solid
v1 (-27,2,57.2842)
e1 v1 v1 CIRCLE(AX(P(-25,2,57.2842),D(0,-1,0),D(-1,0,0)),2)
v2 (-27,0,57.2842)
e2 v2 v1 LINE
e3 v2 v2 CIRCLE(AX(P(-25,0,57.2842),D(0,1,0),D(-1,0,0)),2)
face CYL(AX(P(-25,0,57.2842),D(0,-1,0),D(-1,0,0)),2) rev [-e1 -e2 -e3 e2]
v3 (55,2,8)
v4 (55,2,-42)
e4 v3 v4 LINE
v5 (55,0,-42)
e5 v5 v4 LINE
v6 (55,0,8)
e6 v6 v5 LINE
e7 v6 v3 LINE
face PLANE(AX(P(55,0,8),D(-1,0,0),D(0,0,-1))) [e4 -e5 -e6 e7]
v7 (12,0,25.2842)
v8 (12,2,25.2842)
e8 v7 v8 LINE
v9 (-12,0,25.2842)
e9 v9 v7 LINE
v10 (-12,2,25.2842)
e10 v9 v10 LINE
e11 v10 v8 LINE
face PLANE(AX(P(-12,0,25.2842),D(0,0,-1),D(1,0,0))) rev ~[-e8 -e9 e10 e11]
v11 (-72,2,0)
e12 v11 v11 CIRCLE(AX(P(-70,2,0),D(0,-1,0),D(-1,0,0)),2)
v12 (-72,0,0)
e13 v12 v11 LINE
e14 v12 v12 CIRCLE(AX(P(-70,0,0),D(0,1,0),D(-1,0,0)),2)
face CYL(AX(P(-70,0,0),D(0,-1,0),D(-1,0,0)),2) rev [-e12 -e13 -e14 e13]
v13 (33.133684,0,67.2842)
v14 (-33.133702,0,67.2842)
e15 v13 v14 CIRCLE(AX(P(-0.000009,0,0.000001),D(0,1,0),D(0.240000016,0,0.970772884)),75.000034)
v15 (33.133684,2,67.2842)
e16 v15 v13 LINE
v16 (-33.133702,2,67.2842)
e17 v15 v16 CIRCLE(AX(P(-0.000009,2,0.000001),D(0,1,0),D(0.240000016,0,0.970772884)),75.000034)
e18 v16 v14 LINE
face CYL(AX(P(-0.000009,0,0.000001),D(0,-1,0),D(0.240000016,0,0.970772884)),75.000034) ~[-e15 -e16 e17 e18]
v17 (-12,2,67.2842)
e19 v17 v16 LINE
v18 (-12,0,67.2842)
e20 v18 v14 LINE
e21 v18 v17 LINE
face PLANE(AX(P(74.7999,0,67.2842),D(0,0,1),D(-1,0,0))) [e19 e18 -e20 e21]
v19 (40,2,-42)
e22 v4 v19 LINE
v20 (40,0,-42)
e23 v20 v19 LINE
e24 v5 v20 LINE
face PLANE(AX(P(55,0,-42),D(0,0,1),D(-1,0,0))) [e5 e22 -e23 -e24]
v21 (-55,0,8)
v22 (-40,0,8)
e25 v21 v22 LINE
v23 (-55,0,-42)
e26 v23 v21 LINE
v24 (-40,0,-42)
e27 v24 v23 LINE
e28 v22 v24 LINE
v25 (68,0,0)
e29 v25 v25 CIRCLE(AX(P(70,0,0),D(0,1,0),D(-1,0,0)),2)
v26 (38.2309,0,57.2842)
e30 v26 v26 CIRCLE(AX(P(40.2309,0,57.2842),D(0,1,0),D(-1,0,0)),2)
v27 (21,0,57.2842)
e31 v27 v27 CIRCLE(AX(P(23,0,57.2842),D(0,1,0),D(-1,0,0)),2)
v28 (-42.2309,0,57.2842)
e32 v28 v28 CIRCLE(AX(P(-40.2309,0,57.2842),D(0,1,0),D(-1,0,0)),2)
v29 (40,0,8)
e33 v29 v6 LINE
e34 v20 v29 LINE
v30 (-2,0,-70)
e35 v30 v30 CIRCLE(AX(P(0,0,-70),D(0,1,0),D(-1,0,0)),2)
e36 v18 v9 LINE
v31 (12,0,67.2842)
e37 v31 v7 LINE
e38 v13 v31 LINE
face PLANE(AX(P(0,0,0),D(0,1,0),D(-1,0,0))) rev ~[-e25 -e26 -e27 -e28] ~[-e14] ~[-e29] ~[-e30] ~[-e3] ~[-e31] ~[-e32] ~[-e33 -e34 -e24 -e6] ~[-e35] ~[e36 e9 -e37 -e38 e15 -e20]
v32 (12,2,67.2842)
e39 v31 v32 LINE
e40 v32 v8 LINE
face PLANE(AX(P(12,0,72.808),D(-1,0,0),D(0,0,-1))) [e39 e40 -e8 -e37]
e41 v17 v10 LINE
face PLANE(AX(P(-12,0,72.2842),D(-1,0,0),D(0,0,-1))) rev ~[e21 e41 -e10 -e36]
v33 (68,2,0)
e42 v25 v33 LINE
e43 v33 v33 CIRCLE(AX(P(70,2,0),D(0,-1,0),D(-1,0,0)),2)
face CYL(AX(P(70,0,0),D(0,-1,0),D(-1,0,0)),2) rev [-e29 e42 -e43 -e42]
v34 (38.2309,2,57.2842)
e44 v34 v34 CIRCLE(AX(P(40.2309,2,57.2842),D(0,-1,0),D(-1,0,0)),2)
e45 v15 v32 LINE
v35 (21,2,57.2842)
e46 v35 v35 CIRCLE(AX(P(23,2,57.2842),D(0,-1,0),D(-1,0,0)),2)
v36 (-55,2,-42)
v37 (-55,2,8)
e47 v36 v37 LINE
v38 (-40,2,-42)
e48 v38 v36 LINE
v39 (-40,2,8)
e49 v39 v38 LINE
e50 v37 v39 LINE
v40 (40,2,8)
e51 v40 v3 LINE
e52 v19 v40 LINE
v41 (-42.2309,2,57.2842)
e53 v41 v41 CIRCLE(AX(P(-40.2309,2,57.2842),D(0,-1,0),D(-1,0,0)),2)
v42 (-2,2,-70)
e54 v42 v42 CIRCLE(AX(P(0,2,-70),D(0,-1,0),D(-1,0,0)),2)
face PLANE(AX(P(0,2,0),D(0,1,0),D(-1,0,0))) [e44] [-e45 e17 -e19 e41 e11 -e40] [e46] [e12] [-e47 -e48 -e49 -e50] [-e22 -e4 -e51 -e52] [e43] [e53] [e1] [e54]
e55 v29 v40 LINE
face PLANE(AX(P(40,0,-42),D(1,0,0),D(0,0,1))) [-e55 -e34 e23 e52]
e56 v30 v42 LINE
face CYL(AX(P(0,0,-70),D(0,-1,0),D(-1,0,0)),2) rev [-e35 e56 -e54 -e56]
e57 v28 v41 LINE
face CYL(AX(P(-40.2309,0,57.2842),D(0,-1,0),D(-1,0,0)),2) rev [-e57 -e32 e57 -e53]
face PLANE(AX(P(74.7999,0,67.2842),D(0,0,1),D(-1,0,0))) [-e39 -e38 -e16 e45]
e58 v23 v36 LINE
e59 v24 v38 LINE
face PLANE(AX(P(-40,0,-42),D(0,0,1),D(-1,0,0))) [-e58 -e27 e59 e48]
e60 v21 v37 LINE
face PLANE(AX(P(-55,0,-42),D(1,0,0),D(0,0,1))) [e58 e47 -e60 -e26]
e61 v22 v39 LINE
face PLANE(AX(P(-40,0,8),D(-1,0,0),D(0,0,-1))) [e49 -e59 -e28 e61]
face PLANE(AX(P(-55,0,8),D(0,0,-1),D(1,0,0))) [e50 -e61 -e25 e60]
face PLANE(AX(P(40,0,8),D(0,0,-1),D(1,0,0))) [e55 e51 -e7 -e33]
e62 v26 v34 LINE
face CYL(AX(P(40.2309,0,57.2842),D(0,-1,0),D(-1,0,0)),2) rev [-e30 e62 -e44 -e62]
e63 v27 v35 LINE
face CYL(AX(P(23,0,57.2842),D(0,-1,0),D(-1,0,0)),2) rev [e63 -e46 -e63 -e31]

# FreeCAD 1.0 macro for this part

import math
import FreeCAD as App
import Part
import Sketcher


def add_polygon(sketch, points):
    """Adds a closed chain of lines whose ends are joined by coincident constraints."""
    first, n = sketch.GeometryCount, len(points)
    for a, b in zip(points, points[1:] + points[:1]):
        sketch.addGeometry(Part.LineSegment(App.Vector(*a, 0), App.Vector(*b, 0)), False)
    for i in range(n):
        sketch.addConstraint(Sketcher.Constraint("Coincident", first + i, 2, first + (i + 1) % n, 1))

doc = App.newDocument("Part")
body = doc.addObject("PartDesign::Body", "Body")

# Sketch on XZ plane
sketch1 = doc.addObject("Sketcher::SketchObject", "Sketch")
body.addObject(sketch1)
sketch1.AttachmentSupport = (doc.XZ_Plane, [""])
sketch1.MapMode = "FlatFace"
sketch1.addGeometry(Part.LineSegment(App.Vector(12, 73, 0), App.Vector(18, 73, 0)), False)  # 0
sketch1.addGeometry(Part.ArcOfCircle(Part.Circle(App.Vector(0, 0, 0), App.Vector(0, 0, 1), 75), math.radians(105), math.radians(436)), False)  # 1
sketch1.addGeometry(Part.LineSegment(App.Vector(-20, 72, 0), App.Vector(-12, 72, 0)), False)  # 2
sketch1.addGeometry(Part.LineSegment(App.Vector(-12, 72, 0), App.Vector(-12, 25, 0)), False)  # 3
sketch1.addGeometry(Part.LineSegment(App.Vector(-12, 25, 0), App.Vector(12, 25, 0)), False)  # 4
sketch1.addGeometry(Part.LineSegment(App.Vector(12, 25, 0), App.Vector(12, 73, 0)), False)  # 5
add_polygon(sketch1, [(55, 8), (40, 8), (40, -42), (55, -42)])  # lines 6-9
add_polygon(sketch1, [(-40, 8), (-55, 8), (-55, -42), (-40, -42)])  # lines 10-13
sketch1.addConstraint(Sketcher.Constraint("Coincident", 0, 2, 1, 2))
sketch1.addConstraint(Sketcher.Constraint("Coincident", 1, 1, 2, 1))
sketch1.addConstraint(Sketcher.Constraint("Coincident", 2, 2, 3, 1))
sketch1.addConstraint(Sketcher.Constraint("Coincident", 3, 2, 4, 1))
sketch1.addConstraint(Sketcher.Constraint("Coincident", 4, 2, 5, 1))
sketch1.addConstraint(Sketcher.Constraint("Coincident", 5, 2, 0, 1))
sketch1.addConstraint(Sketcher.Constraint("Horizontal", 0))
sketch1.addConstraint(Sketcher.Constraint("Horizontal", 2))
sketch1.addConstraint(Sketcher.Constraint("Vertical", 3))
sketch1.addConstraint(Sketcher.Constraint("Horizontal", 4))
sketch1.addConstraint(Sketcher.Constraint("Vertical", 5))
sketch1.addConstraint(Sketcher.Constraint("Horizontal", 6))
sketch1.addConstraint(Sketcher.Constraint("Vertical", 7))
sketch1.addConstraint(Sketcher.Constraint("Horizontal", 8))
sketch1.addConstraint(Sketcher.Constraint("Vertical", 9))
sketch1.addConstraint(Sketcher.Constraint("Horizontal", 10))
sketch1.addConstraint(Sketcher.Constraint("Vertical", 11))
sketch1.addConstraint(Sketcher.Constraint("Horizontal", 12))
sketch1.addConstraint(Sketcher.Constraint("Vertical", 13))
sketch1.addConstraint(Sketcher.Constraint("Coincident", 1, 3, -1, 1))
sketch1.addConstraint(Sketcher.Constraint("Symmetric", 9, 2, 10, 2, -2))
sketch1.addConstraint(Sketcher.Constraint("Symmetric", 7, 2, 12, 2, -2))
sketch1.addConstraint(Sketcher.Constraint("Radius", 1, 75.0))
sketch1.addConstraint(Sketcher.Constraint("DistanceX", 2, 1, 2, 2, 8.0))
sketch1.addConstraint(Sketcher.Constraint("DistanceX", 4, 1, 4, 2, 24.0))
sketch1.addConstraint(Sketcher.Constraint("DistanceX", 6, 2, 6, 1, 15.0))
sketch1.addConstraint(Sketcher.Constraint("DistanceY", 3, 2, 3, 1, 47.0))
sketch1.addConstraint(Sketcher.Constraint("DistanceY", 7, 2, 7, 1, 50.0))
sketch1.addConstraint(Sketcher.Constraint("DistanceX", -1, 1, 0, 2, 18.0))
sketch1.addConstraint(Sketcher.Constraint("DistanceX", 2, 2, -1, 1, 12.0))
sketch1.addConstraint(Sketcher.Constraint("DistanceX", -1, 1, 6, 2, 40.0))
sketch1.addConstraint(Sketcher.Constraint("DistanceY", -1, 1, 6, 2, 8.0))
pad1 = doc.addObject("PartDesign::Pad", "Pad")
body.addObject(pad1)
pad1.Profile = sketch1
pad1.Length = 2
pad1.Reversed = True

# Sketch on XZ plane
sketch2 = doc.addObject("Sketcher::SketchObject", "Sketch001")
body.addObject(sketch2)
sketch2.AttachmentSupport = (doc.XZ_Plane, [""])
sketch2.MapMode = "FlatFace"
add_polygon(sketch2, [(75, 81), (75, 67), (-80, 67), (-80, 81)])  # lines 0-3
sketch2.addConstraint(Sketcher.Constraint("Vertical", 0))
sketch2.addConstraint(Sketcher.Constraint("Horizontal", 1))
sketch2.addConstraint(Sketcher.Constraint("Vertical", 2))
sketch2.addConstraint(Sketcher.Constraint("Horizontal", 3))
sketch2.addConstraint(Sketcher.Constraint("DistanceX", -1, 1, 0, 2, 74.8))
sketch2.addConstraint(Sketcher.Constraint("DistanceX", 1, 2, 1, 1, 154.9067))
sketch2.addConstraint(Sketcher.Constraint("DistanceY", 0, 2, 0, 1, 13.8772))
sketch2.addConstraint(Sketcher.Constraint("DistanceY", -1, 1, 0, 2, 67.2842))
pocket1 = doc.addObject("PartDesign::Pocket", "Pocket")
body.addObject(pocket1)
pocket1.Profile = sketch2
pocket1.Length = 2

# Sketch on XZ plane
sketch3 = doc.addObject("Sketcher::SketchObject", "Sketch002")
body.addObject(sketch3)
sketch3.AttachmentSupport = (doc.XZ_Plane, [""])
sketch3.MapMode = "FlatFace"
sketch3.addGeometry(Part.Circle(App.Vector(70, 0, 0), App.Vector(0, 0, 1), 2), False)
sketch3.addGeometry(Part.Circle(App.Vector(0, -70, 0), App.Vector(0, 0, 1), 2), False)
sketch3.addGeometry(Part.Circle(App.Vector(-70, 0, 0), App.Vector(0, 0, 1), 2), False)
sketch3.addConstraint(Sketcher.Constraint("Equal", 0, 1))
sketch3.addConstraint(Sketcher.Constraint("Equal", 1, 2))
sketch3.addConstraint(Sketcher.Constraint("Symmetric", 0, 3, 2, 3, -1, 1))
sketch3.addConstraint(Sketcher.Constraint("PointOnObject", 0, 3, -1))
sketch3.addConstraint(Sketcher.Constraint("PointOnObject", 1, 3, -2))
sketch3.addConstraint(Sketcher.Constraint("Diameter", 0, 4.0))
sketch3.addConstraint(Sketcher.Constraint("DistanceX", -1, 1, 0, 3, 70.0))
sketch3.addConstraint(Sketcher.Constraint("DistanceY", 1, 3, -1, 1, 70.0))
pocket2 = doc.addObject("PartDesign::Pocket", "Pocket001")
body.addObject(pocket2)
pocket2.Profile = sketch3
pocket2.Length = 6
pocket2.Midplane = True

# Sketch on XZ plane
sketch4 = doc.addObject("Sketcher::SketchObject", "Sketch003")
body.addObject(sketch4)
sketch4.AttachmentSupport = (doc.XZ_Plane, [""])
sketch4.MapMode = "FlatFace"
sketch4.addGeometry(Part.Circle(App.Vector(23, 57.3, 0), App.Vector(0, 0, 1), 2), False)
sketch4.addGeometry(Part.Circle(App.Vector(-25, 57.3, 0), App.Vector(0, 0, 1), 2), False)
sketch4.addGeometry(Part.Circle(App.Vector(-40.2, 57.3, 0), App.Vector(0, 0, 1), 2), False)
sketch4.addGeometry(Part.Circle(App.Vector(40.2, 57.3, 0), App.Vector(0, 0, 1), 2), False)
sketch4.addConstraint(Sketcher.Constraint("Equal", 0, 1))
sketch4.addConstraint(Sketcher.Constraint("Equal", 1, 2))
sketch4.addConstraint(Sketcher.Constraint("Equal", 2, 3))
sketch4.addConstraint(Sketcher.Constraint("Symmetric", 2, 3, 3, 3, -2))
sketch4.addConstraint(Sketcher.Constraint("Horizontal", 0, 3, 1, 3))
sketch4.addConstraint(Sketcher.Constraint("Horizontal", 1, 3, 2, 3))
sketch4.addConstraint(Sketcher.Constraint("Diameter", 0, 4.0))
sketch4.addConstraint(Sketcher.Constraint("DistanceX", -1, 1, 0, 3, 23.0))
sketch4.addConstraint(Sketcher.Constraint("DistanceX", 1, 3, -1, 1, 25.0))
sketch4.addConstraint(Sketcher.Constraint("DistanceX", 2, 3, -1, 1, 40.231))
sketch4.addConstraint(Sketcher.Constraint("DistanceY", -1, 1, 0, 3, 57.2842))
pocket3 = doc.addObject("PartDesign::Pocket", "Pocket002")
body.addObject(pocket3)
pocket3.Profile = sketch4
pocket3.Length = 6
pocket3.Midplane = True

doc.recompute()
